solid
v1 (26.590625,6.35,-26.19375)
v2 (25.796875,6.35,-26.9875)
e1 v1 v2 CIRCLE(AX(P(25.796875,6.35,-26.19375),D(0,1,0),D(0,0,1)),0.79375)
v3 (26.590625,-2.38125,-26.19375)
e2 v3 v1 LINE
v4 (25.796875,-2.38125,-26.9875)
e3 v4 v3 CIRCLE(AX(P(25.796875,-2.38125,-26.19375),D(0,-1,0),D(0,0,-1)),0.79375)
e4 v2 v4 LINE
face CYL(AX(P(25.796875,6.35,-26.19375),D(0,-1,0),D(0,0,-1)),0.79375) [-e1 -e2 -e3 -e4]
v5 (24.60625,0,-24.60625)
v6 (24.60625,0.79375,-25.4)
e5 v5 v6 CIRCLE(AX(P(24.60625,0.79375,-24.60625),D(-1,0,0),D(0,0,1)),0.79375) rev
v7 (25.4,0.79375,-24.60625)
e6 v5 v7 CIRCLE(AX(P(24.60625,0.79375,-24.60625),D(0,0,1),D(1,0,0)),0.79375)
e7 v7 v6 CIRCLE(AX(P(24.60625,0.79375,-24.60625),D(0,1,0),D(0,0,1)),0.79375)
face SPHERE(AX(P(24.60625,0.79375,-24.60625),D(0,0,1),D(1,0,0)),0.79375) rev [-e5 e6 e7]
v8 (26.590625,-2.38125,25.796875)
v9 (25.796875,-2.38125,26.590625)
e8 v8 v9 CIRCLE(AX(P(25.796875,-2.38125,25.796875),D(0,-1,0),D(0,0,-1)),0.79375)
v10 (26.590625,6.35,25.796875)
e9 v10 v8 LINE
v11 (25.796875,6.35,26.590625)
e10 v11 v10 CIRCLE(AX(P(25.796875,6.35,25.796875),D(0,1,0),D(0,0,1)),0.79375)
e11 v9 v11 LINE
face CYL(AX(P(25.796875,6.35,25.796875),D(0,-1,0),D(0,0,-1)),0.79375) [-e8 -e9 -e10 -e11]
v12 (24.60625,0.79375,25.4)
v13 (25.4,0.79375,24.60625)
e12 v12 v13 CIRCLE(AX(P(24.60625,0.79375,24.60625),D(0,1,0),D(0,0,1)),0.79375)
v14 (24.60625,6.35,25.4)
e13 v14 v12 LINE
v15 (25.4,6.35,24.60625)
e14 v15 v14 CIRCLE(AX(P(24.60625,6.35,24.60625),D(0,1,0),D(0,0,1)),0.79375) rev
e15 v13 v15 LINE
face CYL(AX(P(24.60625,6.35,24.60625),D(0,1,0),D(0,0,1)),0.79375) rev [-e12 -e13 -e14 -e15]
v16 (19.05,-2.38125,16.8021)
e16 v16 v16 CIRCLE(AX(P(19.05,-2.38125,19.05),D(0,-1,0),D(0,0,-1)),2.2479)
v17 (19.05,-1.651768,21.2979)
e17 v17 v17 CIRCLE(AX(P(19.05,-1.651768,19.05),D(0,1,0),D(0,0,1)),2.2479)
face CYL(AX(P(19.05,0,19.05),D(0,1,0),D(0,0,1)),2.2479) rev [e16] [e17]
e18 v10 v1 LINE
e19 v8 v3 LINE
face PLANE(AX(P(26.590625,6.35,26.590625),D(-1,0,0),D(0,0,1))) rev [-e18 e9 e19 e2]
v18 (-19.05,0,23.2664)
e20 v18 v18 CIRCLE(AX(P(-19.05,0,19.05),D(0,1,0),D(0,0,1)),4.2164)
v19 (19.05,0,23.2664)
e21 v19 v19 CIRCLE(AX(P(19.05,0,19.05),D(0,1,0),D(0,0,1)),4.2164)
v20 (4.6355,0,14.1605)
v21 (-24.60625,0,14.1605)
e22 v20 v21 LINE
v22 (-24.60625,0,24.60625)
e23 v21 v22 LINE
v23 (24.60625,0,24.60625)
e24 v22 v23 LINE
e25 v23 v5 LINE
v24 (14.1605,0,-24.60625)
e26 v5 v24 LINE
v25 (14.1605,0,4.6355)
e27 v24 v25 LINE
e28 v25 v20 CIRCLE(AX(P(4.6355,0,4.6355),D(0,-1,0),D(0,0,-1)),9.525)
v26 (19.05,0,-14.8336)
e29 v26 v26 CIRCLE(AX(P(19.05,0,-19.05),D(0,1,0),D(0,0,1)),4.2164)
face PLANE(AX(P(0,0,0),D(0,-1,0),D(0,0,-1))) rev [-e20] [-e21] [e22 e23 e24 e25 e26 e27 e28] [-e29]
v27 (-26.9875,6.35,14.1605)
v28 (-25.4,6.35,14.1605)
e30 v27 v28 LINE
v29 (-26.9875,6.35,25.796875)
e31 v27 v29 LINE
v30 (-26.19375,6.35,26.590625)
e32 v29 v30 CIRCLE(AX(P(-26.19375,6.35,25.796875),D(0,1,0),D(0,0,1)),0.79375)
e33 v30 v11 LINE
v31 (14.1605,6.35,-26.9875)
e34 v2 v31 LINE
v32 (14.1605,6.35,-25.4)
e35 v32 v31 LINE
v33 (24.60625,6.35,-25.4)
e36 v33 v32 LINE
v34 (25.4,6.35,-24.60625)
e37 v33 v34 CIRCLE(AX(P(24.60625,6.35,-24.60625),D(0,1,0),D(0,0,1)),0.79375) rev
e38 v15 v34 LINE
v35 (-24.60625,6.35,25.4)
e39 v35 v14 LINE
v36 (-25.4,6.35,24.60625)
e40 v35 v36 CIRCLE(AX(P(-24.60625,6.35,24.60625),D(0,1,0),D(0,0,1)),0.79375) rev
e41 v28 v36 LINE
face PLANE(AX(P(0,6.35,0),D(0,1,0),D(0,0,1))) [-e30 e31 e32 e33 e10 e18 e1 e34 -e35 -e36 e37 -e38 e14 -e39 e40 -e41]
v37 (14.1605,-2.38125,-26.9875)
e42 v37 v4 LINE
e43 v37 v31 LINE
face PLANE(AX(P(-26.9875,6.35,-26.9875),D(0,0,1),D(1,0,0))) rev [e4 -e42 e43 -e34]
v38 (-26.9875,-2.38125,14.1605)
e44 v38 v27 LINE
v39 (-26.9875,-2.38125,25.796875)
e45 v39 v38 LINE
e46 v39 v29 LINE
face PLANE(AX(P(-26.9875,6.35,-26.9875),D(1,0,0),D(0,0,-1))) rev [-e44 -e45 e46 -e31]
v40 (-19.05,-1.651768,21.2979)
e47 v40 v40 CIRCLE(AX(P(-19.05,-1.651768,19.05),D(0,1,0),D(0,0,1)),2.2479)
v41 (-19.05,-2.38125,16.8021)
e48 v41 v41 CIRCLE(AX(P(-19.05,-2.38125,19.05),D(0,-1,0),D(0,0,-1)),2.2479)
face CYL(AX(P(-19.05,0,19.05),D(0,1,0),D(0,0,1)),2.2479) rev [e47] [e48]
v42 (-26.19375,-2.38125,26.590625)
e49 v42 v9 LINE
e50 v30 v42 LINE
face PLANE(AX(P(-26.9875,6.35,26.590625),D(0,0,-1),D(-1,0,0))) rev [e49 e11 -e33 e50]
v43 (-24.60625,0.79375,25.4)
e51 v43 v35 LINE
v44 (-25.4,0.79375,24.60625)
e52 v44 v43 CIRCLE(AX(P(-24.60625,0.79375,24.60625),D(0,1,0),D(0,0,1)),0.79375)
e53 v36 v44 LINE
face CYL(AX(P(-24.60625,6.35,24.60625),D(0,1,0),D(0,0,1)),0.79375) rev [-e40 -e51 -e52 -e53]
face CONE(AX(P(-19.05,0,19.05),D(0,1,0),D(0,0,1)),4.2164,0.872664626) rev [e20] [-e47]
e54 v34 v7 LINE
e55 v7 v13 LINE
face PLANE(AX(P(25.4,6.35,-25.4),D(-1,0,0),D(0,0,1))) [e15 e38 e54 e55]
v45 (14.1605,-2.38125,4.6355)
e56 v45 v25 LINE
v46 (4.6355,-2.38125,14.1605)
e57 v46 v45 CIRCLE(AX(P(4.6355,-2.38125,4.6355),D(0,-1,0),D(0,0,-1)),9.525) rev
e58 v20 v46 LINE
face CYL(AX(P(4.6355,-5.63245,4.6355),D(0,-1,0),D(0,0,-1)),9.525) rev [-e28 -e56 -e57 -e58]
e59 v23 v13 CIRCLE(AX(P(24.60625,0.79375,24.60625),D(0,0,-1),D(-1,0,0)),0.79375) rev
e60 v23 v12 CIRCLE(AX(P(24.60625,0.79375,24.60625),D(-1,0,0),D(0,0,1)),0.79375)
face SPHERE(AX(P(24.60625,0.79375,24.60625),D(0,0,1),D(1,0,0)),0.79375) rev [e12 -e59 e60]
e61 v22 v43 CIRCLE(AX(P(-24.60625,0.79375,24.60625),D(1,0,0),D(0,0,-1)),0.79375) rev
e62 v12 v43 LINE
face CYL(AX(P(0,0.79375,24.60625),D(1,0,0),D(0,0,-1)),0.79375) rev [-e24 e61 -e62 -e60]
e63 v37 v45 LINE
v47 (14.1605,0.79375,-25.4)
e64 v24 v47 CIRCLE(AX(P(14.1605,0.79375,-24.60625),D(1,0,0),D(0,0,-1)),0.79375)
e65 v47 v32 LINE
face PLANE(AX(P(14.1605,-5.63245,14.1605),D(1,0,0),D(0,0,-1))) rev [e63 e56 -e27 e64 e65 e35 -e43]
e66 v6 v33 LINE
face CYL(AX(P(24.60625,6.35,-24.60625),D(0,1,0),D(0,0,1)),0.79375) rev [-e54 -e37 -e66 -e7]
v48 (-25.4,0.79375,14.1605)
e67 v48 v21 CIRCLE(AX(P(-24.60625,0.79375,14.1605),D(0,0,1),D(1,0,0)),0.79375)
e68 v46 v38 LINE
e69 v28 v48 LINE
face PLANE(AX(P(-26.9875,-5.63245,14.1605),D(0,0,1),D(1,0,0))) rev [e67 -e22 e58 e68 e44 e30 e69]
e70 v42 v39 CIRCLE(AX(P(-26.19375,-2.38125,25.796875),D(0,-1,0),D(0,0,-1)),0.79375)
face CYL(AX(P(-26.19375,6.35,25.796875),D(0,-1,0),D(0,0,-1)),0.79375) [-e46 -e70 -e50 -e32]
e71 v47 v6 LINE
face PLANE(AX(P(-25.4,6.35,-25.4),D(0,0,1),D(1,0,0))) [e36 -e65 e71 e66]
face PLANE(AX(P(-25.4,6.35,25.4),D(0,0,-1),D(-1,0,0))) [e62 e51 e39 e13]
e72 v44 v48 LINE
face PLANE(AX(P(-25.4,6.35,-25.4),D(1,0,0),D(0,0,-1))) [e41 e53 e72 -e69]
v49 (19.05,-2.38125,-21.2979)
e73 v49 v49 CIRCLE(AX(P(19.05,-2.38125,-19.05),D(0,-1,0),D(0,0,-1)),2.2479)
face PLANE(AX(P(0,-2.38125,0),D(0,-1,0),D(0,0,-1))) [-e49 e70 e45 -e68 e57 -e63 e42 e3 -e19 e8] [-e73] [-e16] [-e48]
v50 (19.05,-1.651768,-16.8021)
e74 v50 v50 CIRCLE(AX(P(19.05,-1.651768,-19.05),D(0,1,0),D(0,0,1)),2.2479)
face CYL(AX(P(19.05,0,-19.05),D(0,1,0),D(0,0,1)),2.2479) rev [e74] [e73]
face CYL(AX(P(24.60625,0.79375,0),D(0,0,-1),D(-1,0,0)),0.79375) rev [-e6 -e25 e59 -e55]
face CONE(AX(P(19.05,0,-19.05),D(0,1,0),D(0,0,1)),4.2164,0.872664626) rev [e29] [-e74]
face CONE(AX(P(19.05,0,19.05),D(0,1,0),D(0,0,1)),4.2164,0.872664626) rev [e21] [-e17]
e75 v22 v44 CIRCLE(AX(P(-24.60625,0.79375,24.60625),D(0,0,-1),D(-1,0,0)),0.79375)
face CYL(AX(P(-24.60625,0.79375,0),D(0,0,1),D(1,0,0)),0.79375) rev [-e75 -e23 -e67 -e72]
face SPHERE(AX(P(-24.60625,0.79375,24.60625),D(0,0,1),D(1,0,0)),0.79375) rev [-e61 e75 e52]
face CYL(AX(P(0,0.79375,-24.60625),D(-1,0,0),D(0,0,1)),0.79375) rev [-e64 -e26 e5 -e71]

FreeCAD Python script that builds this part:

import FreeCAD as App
import Part
import Sketcher
from FreeCAD import Vector
Q = App.Units.Quantity


def edges_at(feature, points):
    """Names of the edges that pass closest to the given points."""
    edges = feature.Shape.Edges
    near = lambda p: min(range(len(edges)), key=lambda i: edges[i].distToShape(Part.Vertex(*p))[0])
    return sorted({f"Edge{near(p) + 1}" for p in points})


def add_polygon(sketch, points):
    """Adds a closed chain of lines whose ends are joined by coincident constraints."""
    first, n = sketch.GeometryCount, len(points)
    for a, b in zip(points, points[1:] + points[:1]):
        sketch.addGeometry(Part.LineSegment(App.Vector(*a, 0), App.Vector(*b, 0)), False)
    for i in range(n):
        sketch.addConstraint(Sketcher.Constraint("Coincident", first + i, 2, first + (i + 1) % n, 1))

doc = App.newDocument("Part")
params = doc.addObject("Spreadsheet::Sheet", "Params")
for row, (alias, value) in enumerate([
    ("sketch1_width", "2 in"),
    ("sketch1_width2", "2.125 in"),
    ("pad1_length", "0.25 in"),
    ("sketch2_width", "2.125 in"),
    ("pad2_length", "0.09375 in"),
    ("sketch3_width", "2.109375 in"),
    ("sketch3_width2", "0.0625 in"),
    ("pad3_length", "0.128 in"),
    ("pad3_length2", "0.0625 in"),
    ("sketch4_diameter", "0.177 in"),
    ("hole_diameter", "0.177 in"),
    ("hole_csink_diameter", "0.332 in"),
    ("sketch5_width", "1.62 in"),
    ("fillet_radius", "0.375 in"),
    ("sketch6_width", "0.046875 in"),
    ("sketch6_width2", "2.125 in"),
    ("pad4_length", "0.28125 in"),
    ("sketch7_width", "2.109375 in"),
    ("sketch7_width2", "0.0625 in"),
    ("fillet2_radius", "0.03125 in"),
], start=1):
    params.set(f"A{row}", alias)
    params.set(f"B{row}", "=" + value)
    params.setAlias(f"B{row}", alias)

body = doc.addObject("PartDesign::Body", "Body")

sketch1 = body.newObject("Sketcher::SketchObject", "Sketch")
sketch1.AttachmentSupport = (doc.getObject("XZ_Plane"), [""])
sketch1.MapMode = "FlatFace"
add_polygon(sketch1, [(-26.9875, -26.9875), (-26.9875, 26.9875), (26.9875, 26.9875), (26.9875, -26.9875)])
add_polygon(sketch1, [(25.4, 25.4), (-25.4, 25.4), (-25.4, -25.4), (25.4, -25.4)])
sketch1.addConstraint([
    Sketcher.Constraint("Vertical", 0),
    Sketcher.Constraint("Horizontal", 1),
    Sketcher.Constraint("Vertical", 2),
    Sketcher.Constraint("Horizontal", 3),
    Sketcher.Constraint("Horizontal", 4),
    Sketcher.Constraint("Vertical", 5),
    Sketcher.Constraint("Horizontal", 6),
    Sketcher.Constraint("Vertical", 7),
    Sketcher.Constraint("Symmetric", 0, 2, 2, 2, -1, 1),
    Sketcher.Constraint("Symmetric", 4, 2, 6, 2, -1, 1),
    Sketcher.Constraint("Equal", 3, 0),
    Sketcher.Constraint("Equal", 6, 5),
    Sketcher.Constraint("DistanceX", 4, 2, 4, 1, Q("2 in")),
    Sketcher.Constraint("DistanceX", 1, 1, 1, 2, Q("2.125 in")),
])
sketch1.setExpression("Constraints[20]", "Params.sketch1_width")
sketch1.setExpression("Constraints[21]", "Params.sketch1_width2")
pad1 = body.newObject("PartDesign::Pad", "Pad")
pad1.Profile = sketch1
pad1.setExpression("Length", "Params.pad1_length")
pad1.Reversed = True

sketch2 = body.newObject("Sketcher::SketchObject", "Sketch001")
sketch2.AttachmentSupport = (doc.getObject("XZ_Plane"), [""])
sketch2.MapMode = "FlatFace"
add_polygon(sketch2, [(-26.9875, 26.9875), (-26.9875, -26.9875), (26.9875, -26.9875), (26.9875, 26.9875)])
sketch2.addConstraint([
    Sketcher.Constraint("Vertical", 0),
    Sketcher.Constraint("Horizontal", 1),
    Sketcher.Constraint("Vertical", 2),
    Sketcher.Constraint("Horizontal", 3),
    Sketcher.Constraint("Symmetric", 0, 2, 2, 2, -1, 1),
    Sketcher.Constraint("Equal", 3, 0),
    Sketcher.Constraint("DistanceX", 1, 1, 1, 2, Q("2.125 in")),
])
sketch2.setExpression("Constraints[10]", "Params.sketch2_width")
pad2 = body.newObject("PartDesign::Pad", "Pad001")
pad2.Profile = sketch2
pad2.setExpression("Length", "Params.pad2_length")

sketch3 = body.newObject("Sketcher::SketchObject", "Sketch002")
sketch3.AttachmentSupport = (doc.getObject("XZ_Plane"), [""])
sketch3.MapMode = "FlatFace"
sketch3.AttachmentOffset = App.Placement(Vector(0, 0, 0.09375 * 25.4), App.Rotation())
add_polygon(sketch3, [(-26.9875, 26.590625), (26.590625, 26.590625), (26.590625, -26.9875), (28.178125, -26.9875), (28.178125, 28.178125), (-26.9875, 28.178125)])
sketch3.addConstraint([
    Sketcher.Constraint("Horizontal", 0),
    Sketcher.Constraint("Vertical", 1),
    Sketcher.Constraint("Horizontal", 2),
    Sketcher.Constraint("Vertical", 3),
    Sketcher.Constraint("Horizontal", 4),
    Sketcher.Constraint("Vertical", 5),
    Sketcher.Constraint("Equal", 0, 1),
    Sketcher.Constraint("Equal", 4, 3),
    Sketcher.Constraint("DistanceX", 0, 1, 0, 2, Q("2.109375 in")),
    Sketcher.Constraint("DistanceX", 2, 1, 2, 2, Q("0.0625 in")),
    Sketcher.Constraint("DistanceX", -1, 1, 0, 2, Q("1.046875 in")),
    Sketcher.Constraint("DistanceY", -1, 1, 0, 2, Q("1.046875 in")),
])
sketch3.setExpression("Constraints[14]", "Params.sketch3_width")
sketch3.setExpression("Constraints[15]", "Params.sketch3_width2")
pad3 = body.newObject("PartDesign::Pad", "Pad002")
pad3.Profile = sketch3
pad3.Type = "TwoLengths"
pad3.setExpression("Length", "Params.pad3_length")
pad3.setExpression("Length2", "Params.pad3_length2")

sketch4 = body.newObject("Sketcher::SketchObject", "Sketch003")
sketch4.AttachmentSupport = (doc.getObject("XZ_Plane"), [""])
sketch4.MapMode = "FlatFace"
sketch4.addGeometry([
    Part.Circle(Vector(19.05, 19.05, 0), Vector(0, 0, 1), 2.2479),
    Part.Circle(Vector(-19.05, -19.05, 0), Vector(0, 0, 1), 2.2479),
    Part.Circle(Vector(19.05, -19.05, 0), Vector(0, 0, 1), 2.2479),
    Part.Circle(Vector(-19.05, 19.05, 0), Vector(0, 0, 1), 2.2479),
], False)
sketch4.addConstraint([
    Sketcher.Constraint("Equal", 0, 1),
    Sketcher.Constraint("Equal", 1, 2),
    Sketcher.Constraint("Equal", 2, 3),
    Sketcher.Constraint("Symmetric", 0, 3, 1, 3, -1, 1),
    Sketcher.Constraint("Symmetric", 2, 3, 3, 3, -1, 1),
    Sketcher.Constraint("Symmetric", 1, 3, 2, 3, -2),
    Sketcher.Constraint("Diameter", 0, Q("0.177 in")),
    Sketcher.Constraint("DistanceX", 1, 3, 0, 3, Q("1.5 in")),
    Sketcher.Constraint("DistanceY", 1, 3, 0, 3, Q("1.5 in")),
])
sketch4.setExpression("Constraints[6]", "Params.sketch4_diameter")
doc.recompute()
hole = body.newObject("PartDesign::Hole", "Hole")
hole.Profile = sketch4
hole.ThreadType = "None"
hole.setExpression("Diameter", "Params.hole_diameter")
hole.DepthType = "ThroughAll"
hole.HoleCutType = "Countersink"
hole.setExpression("HoleCutDiameter", "Params.hole_csink_diameter")
hole.HoleCutCountersinkAngle = 100
hole.Reversed = True

sketch5 = body.newObject("Sketcher::SketchObject", "Sketch004")
sketch5.AttachmentSupport = (doc.getObject("XZ_Plane"), [""])
sketch5.MapMode = "FlatFace"
add_polygon(sketch5, [(-26.9875, -26.9875), (-26.9875, 14.1605), (14.1605, 14.1605), (14.1605, -26.9875)])
sketch5.addConstraint([
    Sketcher.Constraint("Vertical", 0),
    Sketcher.Constraint("Horizontal", 1),
    Sketcher.Constraint("Vertical", 2),
    Sketcher.Constraint("Horizontal", 3),
    Sketcher.Constraint("Equal", 3, 0),
    Sketcher.Constraint("DistanceX", 1, 1, 1, 2, Q("1.62 in")),
    Sketcher.Constraint("DistanceX", 0, 2, -1, 1, Q("1.0625 in")),
    Sketcher.Constraint("DistanceY", 2, 2, -1, 1, Q("1.0625 in")),
])
sketch5.setExpression("Constraints[9]", "Params.sketch5_width")
pocket1 = body.newObject("PartDesign::Pocket", "Pocket")
pocket1.Profile = sketch5
pocket1.Type = "ThroughAll"
pocket1.Midplane = True
doc.recompute()

fillet = body.newObject("PartDesign::Fillet", "Fillet")
fillet.Base = (pocket1, edges_at(pocket1, [(14.161, -1.191, 14.161)]))
fillet.setExpression("Radius", "Params.fillet_radius")

sketch6 = body.newObject("Sketcher::SketchObject", "Sketch005")
sketch6.AttachmentSupport = (doc.getObject("XZ_Plane"), [""])
sketch6.MapMode = "FlatFace"
sketch6.AttachmentOffset = App.Placement(Vector(0, 0, 0.03125 * 25.4), App.Rotation())
add_polygon(sketch6, [(28.178125, -26.9875), (26.9875, -26.9875), (26.9875, 26.9875), (-26.9875, 26.9875), (-26.9875, 28.178125), (28.178125, 28.178125)])
sketch6.addConstraint([
    Sketcher.Constraint("Horizontal", 0),
    Sketcher.Constraint("Vertical", 1),
    Sketcher.Constraint("Horizontal", 2),
    Sketcher.Constraint("Vertical", 3),
    Sketcher.Constraint("Horizontal", 4),
    Sketcher.Constraint("Vertical", 5),
    Sketcher.Constraint("Symmetric", 0, 2, 2, 2, -1, 1),
    Sketcher.Constraint("Equal", 2, 1),
    Sketcher.Constraint("Equal", 0, 3),
    Sketcher.Constraint("DistanceX", 0, 2, 0, 1, Q("0.046875 in")),
    Sketcher.Constraint("DistanceX", 2, 2, 2, 1, Q("2.125 in")),
])
sketch6.setExpression("Constraints[15]", "Params.sketch6_width")
sketch6.setExpression("Constraints[16]", "Params.sketch6_width2")
pad4 = body.newObject("PartDesign::Pad", "Pad003")
pad4.Profile = sketch6
pad4.setExpression("Length", "Params.pad4_length")
pad4.Reversed = True

sketch7 = body.newObject("Sketcher::SketchObject", "Sketch006")
sketch7.AttachmentSupport = (doc.getObject("XZ_Plane"), [""])
sketch7.MapMode = "FlatFace"
sketch7.AttachmentOffset = App.Placement(Vector(0, 0, 5.63245), App.Rotation())
add_polygon(sketch7, [(-26.9875, 28.178125), (-26.9875, 26.590625), (26.590625, 26.590625), (26.590625, -26.9875), (28.178125, -26.9875), (28.178125, 28.178125)])
sketch7.addConstraint([
    Sketcher.Constraint("Vertical", 0),
    Sketcher.Constraint("Horizontal", 1),
    Sketcher.Constraint("Vertical", 2),
    Sketcher.Constraint("Horizontal", 3),
    Sketcher.Constraint("Vertical", 4),
    Sketcher.Constraint("Horizontal", 5),
    Sketcher.Constraint("Equal", 3, 0),
    Sketcher.Constraint("Equal", 1, 2),
    Sketcher.Constraint("DistanceX", 1, 1, 1, 2, Q("2.109375 in")),
    Sketcher.Constraint("DistanceX", 3, 1, 3, 2, Q("0.0625 in")),
    Sketcher.Constraint("DistanceX", 0, 2, -1, 1, Q("1.0625 in")),
    Sketcher.Constraint("DistanceY", -1, 1, 0, 2, Q("1.046875 in")),
])
sketch7.setExpression("Constraints[14]", "Params.sketch7_width")
sketch7.setExpression("Constraints[15]", "Params.sketch7_width2")
pocket2 = body.newObject("PartDesign::Pocket", "Pocket001")
pocket2.Profile = sketch7
pocket2.Type = "ThroughAll"
doc.recompute()

fillet2 = body.newObject("PartDesign::Fillet", "Fillet001")
fillet2.Base = (pocket2, edges_at(pocket2, [
    (26.591, 1.984, -26.988),
    (26.591, 1.984, 26.591),
    (-26.988, 1.984, 26.591),
    (25.4, 0, 0),
    (25.4, 3.175, 25.4),
    (19.78, 0, -25.4),
    (25.4, 3.175, -25.4),
    (0, 0, 25.4),
    (-25.4, 3.175, 25.4),
    (-25.4, 0, 19.78),
]))
fillet2.setExpression("Radius", "Params.fillet2_radius")

doc.recompute()
